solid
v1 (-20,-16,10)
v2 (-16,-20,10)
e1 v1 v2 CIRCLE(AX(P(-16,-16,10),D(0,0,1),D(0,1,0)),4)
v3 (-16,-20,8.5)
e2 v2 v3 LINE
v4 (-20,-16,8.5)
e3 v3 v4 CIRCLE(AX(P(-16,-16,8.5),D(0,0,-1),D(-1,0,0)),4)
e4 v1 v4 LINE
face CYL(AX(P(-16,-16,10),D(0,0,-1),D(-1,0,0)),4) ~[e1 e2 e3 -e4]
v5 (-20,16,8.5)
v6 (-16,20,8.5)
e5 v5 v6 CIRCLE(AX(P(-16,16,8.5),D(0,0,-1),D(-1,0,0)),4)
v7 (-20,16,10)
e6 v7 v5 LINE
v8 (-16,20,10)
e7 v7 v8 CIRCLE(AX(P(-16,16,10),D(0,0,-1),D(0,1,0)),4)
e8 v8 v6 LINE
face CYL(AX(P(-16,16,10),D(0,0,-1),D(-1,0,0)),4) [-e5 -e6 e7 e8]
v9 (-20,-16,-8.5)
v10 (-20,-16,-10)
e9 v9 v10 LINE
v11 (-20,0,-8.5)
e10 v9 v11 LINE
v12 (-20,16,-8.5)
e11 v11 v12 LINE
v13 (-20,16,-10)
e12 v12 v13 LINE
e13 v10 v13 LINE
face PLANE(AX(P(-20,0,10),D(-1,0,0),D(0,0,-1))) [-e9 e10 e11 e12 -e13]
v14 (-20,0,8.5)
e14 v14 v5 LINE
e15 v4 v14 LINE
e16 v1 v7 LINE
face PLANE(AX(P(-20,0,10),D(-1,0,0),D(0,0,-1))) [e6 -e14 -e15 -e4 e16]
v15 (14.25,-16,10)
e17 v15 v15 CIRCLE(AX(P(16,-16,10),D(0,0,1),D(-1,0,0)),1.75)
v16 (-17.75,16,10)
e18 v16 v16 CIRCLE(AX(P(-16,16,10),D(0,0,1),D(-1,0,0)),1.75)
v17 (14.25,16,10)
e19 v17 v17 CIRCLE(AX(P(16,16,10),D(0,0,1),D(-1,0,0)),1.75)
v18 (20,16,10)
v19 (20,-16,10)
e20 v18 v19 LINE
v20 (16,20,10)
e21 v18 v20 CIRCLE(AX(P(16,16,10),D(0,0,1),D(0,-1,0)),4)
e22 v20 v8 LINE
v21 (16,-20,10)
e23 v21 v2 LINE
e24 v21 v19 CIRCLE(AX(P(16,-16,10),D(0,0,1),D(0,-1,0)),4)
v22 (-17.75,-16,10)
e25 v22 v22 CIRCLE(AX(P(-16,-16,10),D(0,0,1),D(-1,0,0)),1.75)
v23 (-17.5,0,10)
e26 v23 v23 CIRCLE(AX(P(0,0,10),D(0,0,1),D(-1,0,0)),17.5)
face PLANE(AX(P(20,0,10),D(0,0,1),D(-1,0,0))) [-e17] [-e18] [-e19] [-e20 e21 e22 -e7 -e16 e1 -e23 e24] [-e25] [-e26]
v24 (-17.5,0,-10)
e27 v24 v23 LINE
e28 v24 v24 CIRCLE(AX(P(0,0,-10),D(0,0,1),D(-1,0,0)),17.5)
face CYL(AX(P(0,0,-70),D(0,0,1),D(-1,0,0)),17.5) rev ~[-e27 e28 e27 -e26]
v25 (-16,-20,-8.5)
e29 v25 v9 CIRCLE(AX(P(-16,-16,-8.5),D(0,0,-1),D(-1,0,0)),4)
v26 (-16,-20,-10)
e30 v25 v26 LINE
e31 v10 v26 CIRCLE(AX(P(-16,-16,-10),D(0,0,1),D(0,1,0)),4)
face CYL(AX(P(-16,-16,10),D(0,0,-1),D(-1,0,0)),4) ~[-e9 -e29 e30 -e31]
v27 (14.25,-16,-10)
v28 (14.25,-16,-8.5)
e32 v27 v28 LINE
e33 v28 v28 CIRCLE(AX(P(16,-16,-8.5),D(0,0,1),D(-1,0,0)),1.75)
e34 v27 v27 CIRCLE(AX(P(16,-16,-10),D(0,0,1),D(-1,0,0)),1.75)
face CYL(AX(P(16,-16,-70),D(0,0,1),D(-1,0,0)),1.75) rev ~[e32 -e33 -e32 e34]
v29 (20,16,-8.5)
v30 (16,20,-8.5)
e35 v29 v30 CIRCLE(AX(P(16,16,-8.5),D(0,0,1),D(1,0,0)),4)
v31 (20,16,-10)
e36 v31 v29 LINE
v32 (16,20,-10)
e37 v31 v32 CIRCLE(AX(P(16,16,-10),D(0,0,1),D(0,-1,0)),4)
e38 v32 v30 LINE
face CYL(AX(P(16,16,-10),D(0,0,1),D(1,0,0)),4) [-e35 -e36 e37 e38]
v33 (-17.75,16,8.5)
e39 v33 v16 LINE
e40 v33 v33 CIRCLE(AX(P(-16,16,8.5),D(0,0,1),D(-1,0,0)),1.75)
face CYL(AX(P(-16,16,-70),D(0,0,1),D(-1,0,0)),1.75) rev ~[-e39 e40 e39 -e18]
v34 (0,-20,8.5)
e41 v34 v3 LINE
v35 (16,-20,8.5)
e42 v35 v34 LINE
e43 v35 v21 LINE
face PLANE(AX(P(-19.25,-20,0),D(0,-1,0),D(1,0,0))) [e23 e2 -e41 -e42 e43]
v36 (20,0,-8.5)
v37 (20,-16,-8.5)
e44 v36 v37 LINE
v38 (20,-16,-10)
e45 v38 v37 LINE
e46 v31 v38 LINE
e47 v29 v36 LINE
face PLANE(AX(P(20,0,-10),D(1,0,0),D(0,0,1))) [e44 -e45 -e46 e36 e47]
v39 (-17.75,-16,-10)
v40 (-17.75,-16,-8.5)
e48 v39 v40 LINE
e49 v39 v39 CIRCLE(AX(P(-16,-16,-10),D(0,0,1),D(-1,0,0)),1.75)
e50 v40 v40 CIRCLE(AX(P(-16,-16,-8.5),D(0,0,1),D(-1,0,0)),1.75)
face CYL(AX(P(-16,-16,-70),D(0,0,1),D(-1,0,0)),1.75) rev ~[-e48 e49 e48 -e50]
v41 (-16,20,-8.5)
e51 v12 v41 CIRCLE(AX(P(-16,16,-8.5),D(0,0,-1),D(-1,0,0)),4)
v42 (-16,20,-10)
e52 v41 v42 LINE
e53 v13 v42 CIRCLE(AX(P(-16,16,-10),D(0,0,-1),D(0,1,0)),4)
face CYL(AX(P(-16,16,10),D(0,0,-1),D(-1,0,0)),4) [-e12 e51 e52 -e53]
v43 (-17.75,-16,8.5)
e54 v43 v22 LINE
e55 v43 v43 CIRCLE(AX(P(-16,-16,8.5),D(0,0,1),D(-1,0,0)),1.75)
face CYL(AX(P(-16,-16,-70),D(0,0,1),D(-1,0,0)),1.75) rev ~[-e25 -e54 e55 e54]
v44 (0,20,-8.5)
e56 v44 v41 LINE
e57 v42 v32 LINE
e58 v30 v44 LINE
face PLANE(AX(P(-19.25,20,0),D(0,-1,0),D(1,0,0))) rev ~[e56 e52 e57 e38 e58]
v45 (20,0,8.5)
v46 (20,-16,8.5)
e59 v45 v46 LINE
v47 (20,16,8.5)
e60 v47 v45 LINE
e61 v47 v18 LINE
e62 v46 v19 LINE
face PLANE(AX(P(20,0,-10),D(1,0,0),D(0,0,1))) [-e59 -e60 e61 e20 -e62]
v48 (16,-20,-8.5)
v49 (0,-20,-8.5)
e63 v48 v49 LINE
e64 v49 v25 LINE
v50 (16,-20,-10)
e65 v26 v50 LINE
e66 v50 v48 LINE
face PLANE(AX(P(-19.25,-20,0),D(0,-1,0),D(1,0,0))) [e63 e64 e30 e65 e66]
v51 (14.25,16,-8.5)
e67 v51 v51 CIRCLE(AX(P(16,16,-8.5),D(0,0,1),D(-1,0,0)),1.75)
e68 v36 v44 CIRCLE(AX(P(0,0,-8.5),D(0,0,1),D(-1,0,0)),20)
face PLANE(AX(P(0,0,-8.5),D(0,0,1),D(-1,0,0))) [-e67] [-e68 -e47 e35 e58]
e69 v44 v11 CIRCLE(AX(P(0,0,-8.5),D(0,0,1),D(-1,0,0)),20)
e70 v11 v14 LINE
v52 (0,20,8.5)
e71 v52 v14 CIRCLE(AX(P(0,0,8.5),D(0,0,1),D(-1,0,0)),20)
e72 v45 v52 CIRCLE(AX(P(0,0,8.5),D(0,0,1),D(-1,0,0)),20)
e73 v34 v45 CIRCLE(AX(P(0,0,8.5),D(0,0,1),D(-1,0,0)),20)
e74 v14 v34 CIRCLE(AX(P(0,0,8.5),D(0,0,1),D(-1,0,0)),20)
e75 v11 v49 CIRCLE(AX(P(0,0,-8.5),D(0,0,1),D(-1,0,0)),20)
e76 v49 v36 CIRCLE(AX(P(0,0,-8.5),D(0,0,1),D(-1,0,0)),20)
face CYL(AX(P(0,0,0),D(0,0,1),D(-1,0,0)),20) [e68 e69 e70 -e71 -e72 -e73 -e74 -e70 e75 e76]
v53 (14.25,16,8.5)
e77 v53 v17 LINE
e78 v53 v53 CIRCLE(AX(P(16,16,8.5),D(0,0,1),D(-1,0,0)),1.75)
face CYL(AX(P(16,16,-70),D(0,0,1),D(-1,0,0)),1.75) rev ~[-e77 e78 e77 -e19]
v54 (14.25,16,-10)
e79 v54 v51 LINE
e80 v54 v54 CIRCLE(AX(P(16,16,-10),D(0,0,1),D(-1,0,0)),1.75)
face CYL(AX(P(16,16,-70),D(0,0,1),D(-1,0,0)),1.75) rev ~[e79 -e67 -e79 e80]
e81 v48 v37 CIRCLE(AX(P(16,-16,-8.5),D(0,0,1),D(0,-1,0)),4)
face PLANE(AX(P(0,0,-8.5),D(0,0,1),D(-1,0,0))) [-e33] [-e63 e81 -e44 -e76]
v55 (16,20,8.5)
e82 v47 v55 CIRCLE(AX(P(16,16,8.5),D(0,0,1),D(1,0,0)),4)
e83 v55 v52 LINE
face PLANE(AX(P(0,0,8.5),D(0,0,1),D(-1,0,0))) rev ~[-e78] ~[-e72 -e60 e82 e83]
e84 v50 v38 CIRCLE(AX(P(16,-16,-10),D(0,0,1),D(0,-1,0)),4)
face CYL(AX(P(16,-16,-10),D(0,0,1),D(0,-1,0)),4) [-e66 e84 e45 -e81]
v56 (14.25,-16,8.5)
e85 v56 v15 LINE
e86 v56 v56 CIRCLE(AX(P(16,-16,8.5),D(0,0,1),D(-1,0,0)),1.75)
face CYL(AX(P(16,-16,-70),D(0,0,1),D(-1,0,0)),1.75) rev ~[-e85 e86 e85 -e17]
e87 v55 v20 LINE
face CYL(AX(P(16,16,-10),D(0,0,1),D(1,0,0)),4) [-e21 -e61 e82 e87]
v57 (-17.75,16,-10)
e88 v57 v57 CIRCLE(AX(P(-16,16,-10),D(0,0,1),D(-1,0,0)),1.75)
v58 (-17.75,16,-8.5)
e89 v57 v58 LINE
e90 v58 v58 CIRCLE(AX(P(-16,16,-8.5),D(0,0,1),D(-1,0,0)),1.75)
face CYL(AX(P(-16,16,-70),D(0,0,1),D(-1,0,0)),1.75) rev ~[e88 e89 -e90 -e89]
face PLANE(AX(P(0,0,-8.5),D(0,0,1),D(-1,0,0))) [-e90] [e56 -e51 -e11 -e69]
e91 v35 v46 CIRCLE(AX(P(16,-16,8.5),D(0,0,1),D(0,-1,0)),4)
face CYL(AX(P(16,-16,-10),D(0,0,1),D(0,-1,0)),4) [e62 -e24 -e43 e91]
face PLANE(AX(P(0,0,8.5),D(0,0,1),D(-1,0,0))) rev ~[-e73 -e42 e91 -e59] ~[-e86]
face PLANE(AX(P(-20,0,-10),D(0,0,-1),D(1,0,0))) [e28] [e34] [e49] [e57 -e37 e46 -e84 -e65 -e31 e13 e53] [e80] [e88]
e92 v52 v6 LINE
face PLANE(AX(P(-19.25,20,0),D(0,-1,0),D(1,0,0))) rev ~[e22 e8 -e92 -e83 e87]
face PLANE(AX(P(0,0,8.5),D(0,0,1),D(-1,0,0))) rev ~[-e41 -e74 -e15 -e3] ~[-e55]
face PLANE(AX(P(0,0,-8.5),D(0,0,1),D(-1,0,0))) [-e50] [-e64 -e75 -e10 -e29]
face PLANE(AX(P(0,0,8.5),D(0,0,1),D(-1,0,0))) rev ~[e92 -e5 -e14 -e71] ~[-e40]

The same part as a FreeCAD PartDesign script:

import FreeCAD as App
import Part
import Sketcher
Q = App.Units.Quantity


def edges_at(feature, points):
    """Names of the edges that pass closest to the given points."""
    edges = feature.Shape.Edges
    near = lambda p: min(range(len(edges)), key=lambda i: edges[i].distToShape(Part.Vertex(*p))[0])
    return sorted({f"Edge{near(p) + 1}" for p in points})


def add_polygon(sketch, points):
    """Adds a closed chain of lines whose ends are joined by coincident constraints."""
    first, n = sketch.GeometryCount, len(points)
    for a, b in zip(points, points[1:] + points[:1]):
        sketch.addGeometry(Part.LineSegment(App.Vector(*a, 0), App.Vector(*b, 0)), False)
    for i in range(n):
        sketch.addConstraint(Sketcher.Constraint("Coincident", first + i, 2, first + (i + 1) % n, 1))

doc = App.newDocument("Part")
body = doc.addObject("PartDesign::Body", "Body")

# Sketch on XZ plane
sketch1 = doc.addObject("Sketcher::SketchObject", "Sketch")
body.addObject(sketch1)
sketch1.AttachmentSupport = (doc.XZ_Plane, [""])
sketch1.MapMode = "FlatFace"
add_polygon(sketch1, [(-20, -10), (20, -10), (20, 10), (-20, 10)])  # lines 0-3
sketch1.addConstraint([
    Sketcher.Constraint("Horizontal", 0),
    Sketcher.Constraint("Vertical", 1),
    Sketcher.Constraint("Horizontal", 2),
    Sketcher.Constraint("Vertical", 3),
    Sketcher.Constraint("Symmetric", 0, 2, 2, 2, -1, 1),
    Sketcher.Constraint("DistanceX", 0, 1, 0, 2, Q("40 mm")),
    Sketcher.Constraint("DistanceY", 1, 1, 1, 2, Q("20 mm")),
])
pad1 = doc.addObject("PartDesign::Pad", "Pad")
body.addObject(pad1)
pad1.Profile = sketch1
pad1.Length = 40
pad1.Midplane = True
doc.recompute()

fillet = doc.addObject("PartDesign::Fillet", "Fillet")
body.addObject(fillet)
fillet.Base = (pad1, edges_at(pad1, [
    (-20, -20, 0),
    (20, -20, 0),
    (20, 20, 0),
    (-20, 20, 0),
]))
fillet.Radius = 4

# Sketch on XY plane
sketch2 = doc.addObject("Sketcher::SketchObject", "Sketch001")
body.addObject(sketch2)
sketch2.AttachmentSupport = (doc.XY_Plane, [""])
sketch2.MapMode = "FlatFace"
sketch2.AttachmentOffset = App.Placement(App.Vector(0, 0, -10), App.Rotation())
sketch2.addGeometry([
    Part.Circle(App.Vector(-16, -16, 0), App.Vector(0, 0, 1), 1.8),
    Part.Circle(App.Vector(16, -16, 0), App.Vector(0, 0, 1), 1.8),
    Part.Circle(App.Vector(16, 16, 0), App.Vector(0, 0, 1), 1.8),
    Part.Circle(App.Vector(-16, 16, 0), App.Vector(0, 0, 1), 1.8),
], False)
sketch2.addConstraint([
    Sketcher.Constraint("Equal", 0, 1),
    Sketcher.Constraint("Equal", 1, 2),
    Sketcher.Constraint("Equal", 2, 3),
    Sketcher.Constraint("Symmetric", 0, 3, 2, 3, -1, 1),
    Sketcher.Constraint("Symmetric", 1, 3, 3, 3, -1, 1),
    Sketcher.Constraint("Symmetric", 0, 3, 1, 3, -2),
    Sketcher.Constraint("Diameter", 0, Q("3.5 mm")),
    Sketcher.Constraint("DistanceX", 0, 3, -1, 1, Q("16 mm")),
    Sketcher.Constraint("DistanceY", 0, 3, -1, 1, Q("16 mm")),
])
doc.recompute()
hole = doc.addObject("PartDesign::Hole", "Hole")
body.addObject(hole)
hole.Profile = sketch2
hole.ThreadType = "None"
hole.Diameter = 3.5
hole.DepthType = "ThroughAll"
hole.Reversed = True

# Sketch on XZ plane
sketch3 = doc.addObject("Sketcher::SketchObject", "Sketch002")
body.addObject(sketch3)
sketch3.AttachmentSupport = (doc.XZ_Plane, [""])
sketch3.MapMode = "FlatFace"
add_polygon(sketch3, [(-43, 8), (-43, -8), (-20, -8), (-20, 8)])  # lines 0-3
sketch3.addConstraint([
    Sketcher.Constraint("Vertical", 0),
    Sketcher.Constraint("Horizontal", 1),
    Sketcher.Constraint("Vertical", 2),
    Sketcher.Constraint("Horizontal", 3),
    Sketcher.Constraint("DistanceY", 0, 2, 0, 1, Q("17 mm")),
    Sketcher.Constraint("DistanceX", 1, 2, -1, 1, Q("20 mm")),
    Sketcher.Constraint("DistanceY", 0, 2, -1, 1, Q("8.5 mm")),
    Sketcher.Constraint("DistanceX", 1, 1, 1, 2, Q("22.978194 mm")),
])
groove = doc.addObject("PartDesign::Groove", "Groove")
body.addObject(groove)
groove.Profile = sketch3
groove.ReferenceAxis = (sketch3, ["V_Axis"])
groove.Angle = 360

# Sketch on XY plane
sketch4 = doc.addObject("Sketcher::SketchObject", "Sketch003")
body.addObject(sketch4)
sketch4.AttachmentSupport = (doc.XY_Plane, [""])
sketch4.MapMode = "FlatFace"
sketch4.AttachmentOffset = App.Placement(App.Vector(0, 0, -10), App.Rotation())
sketch4.addGeometry(Part.Circle(App.Vector(0, 0, 0), App.Vector(0, 0, 1), 18), False)
sketch4.addConstraint([
    Sketcher.Constraint("Coincident", 0, 3, -1, 1),
    Sketcher.Constraint("Diameter", 0, Q("35 mm")),
])
doc.recompute()
hole2 = doc.addObject("PartDesign::Hole", "Hole001")
body.addObject(hole2)
hole2.Profile = sketch4
hole2.ThreadType = "None"
hole2.Diameter = 35
hole2.DepthType = "ThroughAll"
hole2.Reversed = True

doc.recompute()
